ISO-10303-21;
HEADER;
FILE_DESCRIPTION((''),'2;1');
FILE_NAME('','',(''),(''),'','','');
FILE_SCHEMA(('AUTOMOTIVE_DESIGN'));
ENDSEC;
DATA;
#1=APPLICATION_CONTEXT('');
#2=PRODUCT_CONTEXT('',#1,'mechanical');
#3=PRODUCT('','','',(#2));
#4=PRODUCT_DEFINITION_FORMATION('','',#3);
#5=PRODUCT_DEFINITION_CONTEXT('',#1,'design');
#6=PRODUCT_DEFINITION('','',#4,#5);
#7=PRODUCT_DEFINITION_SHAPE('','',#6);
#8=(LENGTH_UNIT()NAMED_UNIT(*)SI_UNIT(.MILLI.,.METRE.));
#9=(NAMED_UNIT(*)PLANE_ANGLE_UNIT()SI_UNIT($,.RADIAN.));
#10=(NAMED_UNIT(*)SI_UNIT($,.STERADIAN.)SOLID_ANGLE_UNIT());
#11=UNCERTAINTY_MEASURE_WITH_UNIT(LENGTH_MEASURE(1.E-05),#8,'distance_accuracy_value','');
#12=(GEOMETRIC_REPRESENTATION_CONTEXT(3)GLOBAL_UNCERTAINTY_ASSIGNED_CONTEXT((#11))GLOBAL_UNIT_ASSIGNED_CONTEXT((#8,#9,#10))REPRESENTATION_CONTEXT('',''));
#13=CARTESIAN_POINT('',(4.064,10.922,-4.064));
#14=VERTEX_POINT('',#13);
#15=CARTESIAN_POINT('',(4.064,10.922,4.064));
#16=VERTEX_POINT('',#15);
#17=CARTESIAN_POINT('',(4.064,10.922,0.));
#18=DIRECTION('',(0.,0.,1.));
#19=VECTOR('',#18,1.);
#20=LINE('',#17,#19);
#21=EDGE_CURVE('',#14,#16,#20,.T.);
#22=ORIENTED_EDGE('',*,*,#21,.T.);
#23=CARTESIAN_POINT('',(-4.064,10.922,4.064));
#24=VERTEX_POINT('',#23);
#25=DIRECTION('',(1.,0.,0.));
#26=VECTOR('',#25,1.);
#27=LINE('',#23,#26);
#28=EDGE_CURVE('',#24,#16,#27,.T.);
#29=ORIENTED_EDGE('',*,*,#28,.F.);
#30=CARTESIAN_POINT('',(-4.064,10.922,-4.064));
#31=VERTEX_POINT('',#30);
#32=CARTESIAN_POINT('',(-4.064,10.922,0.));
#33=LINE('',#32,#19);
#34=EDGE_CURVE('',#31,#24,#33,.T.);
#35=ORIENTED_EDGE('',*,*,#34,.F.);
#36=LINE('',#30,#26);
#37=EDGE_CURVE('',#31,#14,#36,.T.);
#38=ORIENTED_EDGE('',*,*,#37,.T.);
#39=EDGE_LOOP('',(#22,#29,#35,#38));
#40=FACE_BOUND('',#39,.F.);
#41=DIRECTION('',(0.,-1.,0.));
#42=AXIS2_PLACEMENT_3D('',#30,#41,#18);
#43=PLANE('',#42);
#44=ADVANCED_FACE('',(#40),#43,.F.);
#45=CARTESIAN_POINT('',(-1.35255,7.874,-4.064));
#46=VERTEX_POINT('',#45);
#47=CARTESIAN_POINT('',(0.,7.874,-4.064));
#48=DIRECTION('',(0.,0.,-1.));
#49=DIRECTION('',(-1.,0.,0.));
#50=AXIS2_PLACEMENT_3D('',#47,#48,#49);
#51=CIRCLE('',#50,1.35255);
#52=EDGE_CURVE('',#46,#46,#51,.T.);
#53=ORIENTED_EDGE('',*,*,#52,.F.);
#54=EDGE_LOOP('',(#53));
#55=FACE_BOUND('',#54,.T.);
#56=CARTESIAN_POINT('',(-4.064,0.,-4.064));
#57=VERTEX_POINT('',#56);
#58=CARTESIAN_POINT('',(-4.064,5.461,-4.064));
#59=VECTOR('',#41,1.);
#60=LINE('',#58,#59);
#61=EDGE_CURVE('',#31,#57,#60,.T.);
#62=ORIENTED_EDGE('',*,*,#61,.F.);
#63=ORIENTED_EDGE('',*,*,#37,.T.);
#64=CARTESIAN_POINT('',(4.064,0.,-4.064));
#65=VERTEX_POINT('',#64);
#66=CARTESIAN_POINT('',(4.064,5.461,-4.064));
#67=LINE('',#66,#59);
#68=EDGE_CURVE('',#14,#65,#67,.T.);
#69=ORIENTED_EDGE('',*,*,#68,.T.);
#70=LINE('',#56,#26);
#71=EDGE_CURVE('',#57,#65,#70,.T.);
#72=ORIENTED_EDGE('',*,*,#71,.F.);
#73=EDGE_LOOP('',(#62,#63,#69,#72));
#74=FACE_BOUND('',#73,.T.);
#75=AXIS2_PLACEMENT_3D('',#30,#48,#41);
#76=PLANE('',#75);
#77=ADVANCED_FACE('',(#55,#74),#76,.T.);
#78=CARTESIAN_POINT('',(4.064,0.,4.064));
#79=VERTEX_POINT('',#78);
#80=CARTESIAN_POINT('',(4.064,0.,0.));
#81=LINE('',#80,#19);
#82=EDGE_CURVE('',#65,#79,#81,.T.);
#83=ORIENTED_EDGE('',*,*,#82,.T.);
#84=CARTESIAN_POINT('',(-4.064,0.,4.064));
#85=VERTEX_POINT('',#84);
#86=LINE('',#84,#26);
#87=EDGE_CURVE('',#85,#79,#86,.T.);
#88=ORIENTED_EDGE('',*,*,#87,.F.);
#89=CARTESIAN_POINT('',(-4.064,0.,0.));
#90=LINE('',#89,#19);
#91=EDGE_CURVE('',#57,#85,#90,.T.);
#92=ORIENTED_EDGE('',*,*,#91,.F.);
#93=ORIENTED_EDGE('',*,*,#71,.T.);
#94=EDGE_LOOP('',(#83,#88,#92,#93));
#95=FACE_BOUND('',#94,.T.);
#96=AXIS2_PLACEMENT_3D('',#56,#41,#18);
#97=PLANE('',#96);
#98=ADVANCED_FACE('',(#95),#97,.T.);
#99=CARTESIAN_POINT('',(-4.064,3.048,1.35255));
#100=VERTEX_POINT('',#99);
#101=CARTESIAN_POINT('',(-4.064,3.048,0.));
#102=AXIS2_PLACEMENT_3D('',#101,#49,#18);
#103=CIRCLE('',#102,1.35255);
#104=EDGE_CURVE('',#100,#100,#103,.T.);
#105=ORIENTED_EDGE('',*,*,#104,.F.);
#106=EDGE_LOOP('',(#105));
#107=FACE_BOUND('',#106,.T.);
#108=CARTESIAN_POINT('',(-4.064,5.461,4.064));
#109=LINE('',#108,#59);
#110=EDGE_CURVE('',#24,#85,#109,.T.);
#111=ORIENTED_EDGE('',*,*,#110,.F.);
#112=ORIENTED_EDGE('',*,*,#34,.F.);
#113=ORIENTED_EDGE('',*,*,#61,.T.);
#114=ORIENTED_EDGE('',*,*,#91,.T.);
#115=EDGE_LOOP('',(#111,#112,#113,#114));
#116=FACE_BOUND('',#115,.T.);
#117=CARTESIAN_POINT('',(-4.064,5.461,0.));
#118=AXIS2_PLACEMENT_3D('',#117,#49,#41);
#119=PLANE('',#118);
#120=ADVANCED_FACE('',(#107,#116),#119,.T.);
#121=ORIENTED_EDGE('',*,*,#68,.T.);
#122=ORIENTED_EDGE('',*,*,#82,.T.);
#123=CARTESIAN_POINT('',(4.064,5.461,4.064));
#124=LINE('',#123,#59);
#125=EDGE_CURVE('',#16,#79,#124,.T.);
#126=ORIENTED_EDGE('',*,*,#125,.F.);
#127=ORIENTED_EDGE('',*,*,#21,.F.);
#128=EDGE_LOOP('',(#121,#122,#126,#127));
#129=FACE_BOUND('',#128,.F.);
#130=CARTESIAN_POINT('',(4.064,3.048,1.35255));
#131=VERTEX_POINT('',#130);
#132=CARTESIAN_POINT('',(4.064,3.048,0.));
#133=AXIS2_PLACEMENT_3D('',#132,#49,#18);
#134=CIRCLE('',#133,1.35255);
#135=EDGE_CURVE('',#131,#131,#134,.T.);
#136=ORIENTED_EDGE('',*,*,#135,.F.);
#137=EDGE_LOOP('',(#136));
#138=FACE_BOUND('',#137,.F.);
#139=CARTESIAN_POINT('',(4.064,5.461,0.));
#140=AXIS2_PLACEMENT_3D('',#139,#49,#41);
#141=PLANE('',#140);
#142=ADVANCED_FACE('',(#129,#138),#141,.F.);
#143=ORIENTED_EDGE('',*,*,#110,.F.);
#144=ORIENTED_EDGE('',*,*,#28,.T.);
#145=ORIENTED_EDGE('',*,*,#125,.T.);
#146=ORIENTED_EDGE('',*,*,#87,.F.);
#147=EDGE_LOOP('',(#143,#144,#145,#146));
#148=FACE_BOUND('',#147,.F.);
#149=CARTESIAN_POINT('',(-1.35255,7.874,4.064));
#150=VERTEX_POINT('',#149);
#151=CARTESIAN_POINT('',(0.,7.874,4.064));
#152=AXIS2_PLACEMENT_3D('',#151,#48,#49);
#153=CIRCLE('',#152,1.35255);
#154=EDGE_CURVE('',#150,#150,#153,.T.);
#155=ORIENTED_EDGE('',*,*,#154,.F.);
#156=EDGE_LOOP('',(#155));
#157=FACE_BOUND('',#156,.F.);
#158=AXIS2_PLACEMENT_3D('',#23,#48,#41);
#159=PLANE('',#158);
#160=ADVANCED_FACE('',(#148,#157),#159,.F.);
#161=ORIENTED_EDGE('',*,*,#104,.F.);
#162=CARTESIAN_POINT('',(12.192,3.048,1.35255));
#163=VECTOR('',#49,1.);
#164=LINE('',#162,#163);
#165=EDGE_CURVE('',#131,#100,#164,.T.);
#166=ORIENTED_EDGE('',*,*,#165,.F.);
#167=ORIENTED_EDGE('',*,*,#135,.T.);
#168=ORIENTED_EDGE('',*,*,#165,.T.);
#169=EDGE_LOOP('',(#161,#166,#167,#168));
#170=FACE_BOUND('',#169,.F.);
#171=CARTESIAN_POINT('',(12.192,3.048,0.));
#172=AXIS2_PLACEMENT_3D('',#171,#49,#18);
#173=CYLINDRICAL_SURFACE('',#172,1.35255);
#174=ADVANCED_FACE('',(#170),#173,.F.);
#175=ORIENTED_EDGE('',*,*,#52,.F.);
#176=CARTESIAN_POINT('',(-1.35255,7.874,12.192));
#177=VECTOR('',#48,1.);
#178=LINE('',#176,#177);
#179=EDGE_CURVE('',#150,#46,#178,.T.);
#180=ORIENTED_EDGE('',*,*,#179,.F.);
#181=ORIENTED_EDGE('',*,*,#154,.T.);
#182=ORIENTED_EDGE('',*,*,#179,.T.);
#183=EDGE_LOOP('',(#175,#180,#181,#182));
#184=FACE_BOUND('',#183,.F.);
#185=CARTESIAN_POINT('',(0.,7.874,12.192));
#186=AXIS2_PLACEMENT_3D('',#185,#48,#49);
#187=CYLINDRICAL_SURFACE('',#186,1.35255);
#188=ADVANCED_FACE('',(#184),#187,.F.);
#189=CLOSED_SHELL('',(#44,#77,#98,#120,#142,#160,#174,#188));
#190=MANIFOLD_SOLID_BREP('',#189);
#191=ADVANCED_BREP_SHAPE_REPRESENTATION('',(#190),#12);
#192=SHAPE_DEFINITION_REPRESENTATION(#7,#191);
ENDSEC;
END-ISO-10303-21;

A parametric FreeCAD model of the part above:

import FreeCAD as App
import Part
import Sketcher
from FreeCAD import Vector
Q = App.Units.Quantity

doc = App.newDocument("Part")
params = doc.addObject("Spreadsheet::Sheet", "Params")
for row, (alias, value) in enumerate([
    ("sketch1_width", "0.43 in"),
    ("sketch1_height", "0.32 in"),
    ("pad1_length", "0.32 in"),
    ("hole_diameter", "0.1065 in"),
    ("hole_depth", "0.32 in"),
    ("hole2_diameter", "0.1065 in"),
    ("hole2_depth", "0.32 in"),
], start=1):
    params.set(f"A{row}", alias)
    params.set(f"B{row}", "=" + value)
    params.setAlias(f"B{row}", alias)

body = doc.addObject("PartDesign::Body", "Body")

# Sketch on YZ plane
sketch1 = doc.addObject("Sketcher::SketchObject", "Sketch")
body.addObject(sketch1)
sketch1.AttachmentSupport = (doc.YZ_Plane, [""])
sketch1.MapMode = "FlatFace"
sketch1.AttachmentOffset = App.Placement(Vector(0, 0, -0.16 * 25.4), App.Rotation())
sketch1.addGeometry([
    Part.LineSegment(Vector(11, 4, 0), Vector(11, -4, 0)),
    Part.LineSegment(Vector(11, -4, 0), Vector(0, -4, 0)),
    Part.LineSegment(Vector(0, -4, 0), Vector(0, 4, 0)),
    Part.LineSegment(Vector(0, 4, 0), Vector(11, 4, 0)),
], False)
sketch1.addConstraint([
    Sketcher.Constraint("Coincident", 0, 2, 1, 1),
    Sketcher.Constraint("Coincident", 1, 2, 2, 1),
    Sketcher.Constraint("Coincident", 2, 2, 3, 1),
    Sketcher.Constraint("Coincident", 3, 2, 0, 1),
    Sketcher.Constraint("Vertical", 0),
    Sketcher.Constraint("Horizontal", 1),
    Sketcher.Constraint("Vertical", 2),
    Sketcher.Constraint("Horizontal", 3),
    Sketcher.Constraint("Symmetric", 1, 2, 2, 2, -1, 1),
    Sketcher.Constraint("DistanceX", 1, 2, 1, 1, Q("0.43 in")),
    Sketcher.Constraint("DistanceY", 0, 2, 0, 1, Q("0.32 in")),
])
sketch1.setExpression("Constraints[9]", "Params.sketch1_width")
sketch1.setExpression("Constraints[10]", "Params.sketch1_height")
pad1 = doc.addObject("PartDesign::Pad", "Pad")
body.addObject(pad1)
pad1.Profile = sketch1
pad1.setExpression("Length", "Params.pad1_length")

# Sketch on YZ plane
sketch2 = doc.addObject("Sketcher::SketchObject", "Sketch001")
body.addObject(sketch2)
sketch2.AttachmentSupport = (doc.YZ_Plane, [""])
sketch2.MapMode = "FlatFace"
sketch2.AttachmentOffset = App.Placement(Vector(0, 0, 0.16 * 25.4), App.Rotation())
sketch2.addGeometry(Part.Circle(Vector(3, 0, 0), Vector(0, 0, 1), 1.4), False)
sketch2.addConstraint([
    Sketcher.Constraint("PointOnObject", 0, 3, -1),
    Sketcher.Constraint("Diameter", 0, Q("0.1065 in")),
    Sketcher.Constraint("DistanceX", -1, 1, 0, 3, Q("0.12 in")),
])
doc.recompute()
hole = doc.addObject("PartDesign::Hole", "Hole")
body.addObject(hole)
hole.Profile = sketch2
hole.ThreadType = "None"
hole.setExpression("Diameter", "Params.hole_diameter")
hole.DepthType = "Dimension"
hole.setExpression("Depth", "Params.hole_depth")
hole.DrillPoint = "Flat"

# Sketch on XY plane
sketch3 = doc.addObject("Sketcher::SketchObject", "Sketch002")
body.addObject(sketch3)
sketch3.AttachmentSupport = (doc.XY_Plane, [""])
sketch3.MapMode = "FlatFace"
sketch3.AttachmentOffset = App.Placement(Vector(0, 0, 0.16 * 25.4), App.Rotation())
sketch3.addGeometry(Part.Circle(Vector(0, 7.9, 0), Vector(0, 0, 1), 1.4), False)
sketch3.addConstraint([
    Sketcher.Constraint("PointOnObject", 0, 3, -2),
    Sketcher.Constraint("Diameter", 0, Q("0.1065 in")),
    Sketcher.Constraint("DistanceY", -1, 1, 0, 3, Q("0.31 in")),
])
doc.recompute()
hole2 = doc.addObject("PartDesign::Hole", "Hole001")
body.addObject(hole2)
hole2.Profile = sketch3
hole2.ThreadType = "None"
hole2.setExpression("Diameter", "Params.hole2_diameter")
hole2.DepthType = "Dimension"
hole2.setExpression("Depth", "Params.hole2_depth")
hole2.DrillPoint = "Flat"

doc.recompute()
